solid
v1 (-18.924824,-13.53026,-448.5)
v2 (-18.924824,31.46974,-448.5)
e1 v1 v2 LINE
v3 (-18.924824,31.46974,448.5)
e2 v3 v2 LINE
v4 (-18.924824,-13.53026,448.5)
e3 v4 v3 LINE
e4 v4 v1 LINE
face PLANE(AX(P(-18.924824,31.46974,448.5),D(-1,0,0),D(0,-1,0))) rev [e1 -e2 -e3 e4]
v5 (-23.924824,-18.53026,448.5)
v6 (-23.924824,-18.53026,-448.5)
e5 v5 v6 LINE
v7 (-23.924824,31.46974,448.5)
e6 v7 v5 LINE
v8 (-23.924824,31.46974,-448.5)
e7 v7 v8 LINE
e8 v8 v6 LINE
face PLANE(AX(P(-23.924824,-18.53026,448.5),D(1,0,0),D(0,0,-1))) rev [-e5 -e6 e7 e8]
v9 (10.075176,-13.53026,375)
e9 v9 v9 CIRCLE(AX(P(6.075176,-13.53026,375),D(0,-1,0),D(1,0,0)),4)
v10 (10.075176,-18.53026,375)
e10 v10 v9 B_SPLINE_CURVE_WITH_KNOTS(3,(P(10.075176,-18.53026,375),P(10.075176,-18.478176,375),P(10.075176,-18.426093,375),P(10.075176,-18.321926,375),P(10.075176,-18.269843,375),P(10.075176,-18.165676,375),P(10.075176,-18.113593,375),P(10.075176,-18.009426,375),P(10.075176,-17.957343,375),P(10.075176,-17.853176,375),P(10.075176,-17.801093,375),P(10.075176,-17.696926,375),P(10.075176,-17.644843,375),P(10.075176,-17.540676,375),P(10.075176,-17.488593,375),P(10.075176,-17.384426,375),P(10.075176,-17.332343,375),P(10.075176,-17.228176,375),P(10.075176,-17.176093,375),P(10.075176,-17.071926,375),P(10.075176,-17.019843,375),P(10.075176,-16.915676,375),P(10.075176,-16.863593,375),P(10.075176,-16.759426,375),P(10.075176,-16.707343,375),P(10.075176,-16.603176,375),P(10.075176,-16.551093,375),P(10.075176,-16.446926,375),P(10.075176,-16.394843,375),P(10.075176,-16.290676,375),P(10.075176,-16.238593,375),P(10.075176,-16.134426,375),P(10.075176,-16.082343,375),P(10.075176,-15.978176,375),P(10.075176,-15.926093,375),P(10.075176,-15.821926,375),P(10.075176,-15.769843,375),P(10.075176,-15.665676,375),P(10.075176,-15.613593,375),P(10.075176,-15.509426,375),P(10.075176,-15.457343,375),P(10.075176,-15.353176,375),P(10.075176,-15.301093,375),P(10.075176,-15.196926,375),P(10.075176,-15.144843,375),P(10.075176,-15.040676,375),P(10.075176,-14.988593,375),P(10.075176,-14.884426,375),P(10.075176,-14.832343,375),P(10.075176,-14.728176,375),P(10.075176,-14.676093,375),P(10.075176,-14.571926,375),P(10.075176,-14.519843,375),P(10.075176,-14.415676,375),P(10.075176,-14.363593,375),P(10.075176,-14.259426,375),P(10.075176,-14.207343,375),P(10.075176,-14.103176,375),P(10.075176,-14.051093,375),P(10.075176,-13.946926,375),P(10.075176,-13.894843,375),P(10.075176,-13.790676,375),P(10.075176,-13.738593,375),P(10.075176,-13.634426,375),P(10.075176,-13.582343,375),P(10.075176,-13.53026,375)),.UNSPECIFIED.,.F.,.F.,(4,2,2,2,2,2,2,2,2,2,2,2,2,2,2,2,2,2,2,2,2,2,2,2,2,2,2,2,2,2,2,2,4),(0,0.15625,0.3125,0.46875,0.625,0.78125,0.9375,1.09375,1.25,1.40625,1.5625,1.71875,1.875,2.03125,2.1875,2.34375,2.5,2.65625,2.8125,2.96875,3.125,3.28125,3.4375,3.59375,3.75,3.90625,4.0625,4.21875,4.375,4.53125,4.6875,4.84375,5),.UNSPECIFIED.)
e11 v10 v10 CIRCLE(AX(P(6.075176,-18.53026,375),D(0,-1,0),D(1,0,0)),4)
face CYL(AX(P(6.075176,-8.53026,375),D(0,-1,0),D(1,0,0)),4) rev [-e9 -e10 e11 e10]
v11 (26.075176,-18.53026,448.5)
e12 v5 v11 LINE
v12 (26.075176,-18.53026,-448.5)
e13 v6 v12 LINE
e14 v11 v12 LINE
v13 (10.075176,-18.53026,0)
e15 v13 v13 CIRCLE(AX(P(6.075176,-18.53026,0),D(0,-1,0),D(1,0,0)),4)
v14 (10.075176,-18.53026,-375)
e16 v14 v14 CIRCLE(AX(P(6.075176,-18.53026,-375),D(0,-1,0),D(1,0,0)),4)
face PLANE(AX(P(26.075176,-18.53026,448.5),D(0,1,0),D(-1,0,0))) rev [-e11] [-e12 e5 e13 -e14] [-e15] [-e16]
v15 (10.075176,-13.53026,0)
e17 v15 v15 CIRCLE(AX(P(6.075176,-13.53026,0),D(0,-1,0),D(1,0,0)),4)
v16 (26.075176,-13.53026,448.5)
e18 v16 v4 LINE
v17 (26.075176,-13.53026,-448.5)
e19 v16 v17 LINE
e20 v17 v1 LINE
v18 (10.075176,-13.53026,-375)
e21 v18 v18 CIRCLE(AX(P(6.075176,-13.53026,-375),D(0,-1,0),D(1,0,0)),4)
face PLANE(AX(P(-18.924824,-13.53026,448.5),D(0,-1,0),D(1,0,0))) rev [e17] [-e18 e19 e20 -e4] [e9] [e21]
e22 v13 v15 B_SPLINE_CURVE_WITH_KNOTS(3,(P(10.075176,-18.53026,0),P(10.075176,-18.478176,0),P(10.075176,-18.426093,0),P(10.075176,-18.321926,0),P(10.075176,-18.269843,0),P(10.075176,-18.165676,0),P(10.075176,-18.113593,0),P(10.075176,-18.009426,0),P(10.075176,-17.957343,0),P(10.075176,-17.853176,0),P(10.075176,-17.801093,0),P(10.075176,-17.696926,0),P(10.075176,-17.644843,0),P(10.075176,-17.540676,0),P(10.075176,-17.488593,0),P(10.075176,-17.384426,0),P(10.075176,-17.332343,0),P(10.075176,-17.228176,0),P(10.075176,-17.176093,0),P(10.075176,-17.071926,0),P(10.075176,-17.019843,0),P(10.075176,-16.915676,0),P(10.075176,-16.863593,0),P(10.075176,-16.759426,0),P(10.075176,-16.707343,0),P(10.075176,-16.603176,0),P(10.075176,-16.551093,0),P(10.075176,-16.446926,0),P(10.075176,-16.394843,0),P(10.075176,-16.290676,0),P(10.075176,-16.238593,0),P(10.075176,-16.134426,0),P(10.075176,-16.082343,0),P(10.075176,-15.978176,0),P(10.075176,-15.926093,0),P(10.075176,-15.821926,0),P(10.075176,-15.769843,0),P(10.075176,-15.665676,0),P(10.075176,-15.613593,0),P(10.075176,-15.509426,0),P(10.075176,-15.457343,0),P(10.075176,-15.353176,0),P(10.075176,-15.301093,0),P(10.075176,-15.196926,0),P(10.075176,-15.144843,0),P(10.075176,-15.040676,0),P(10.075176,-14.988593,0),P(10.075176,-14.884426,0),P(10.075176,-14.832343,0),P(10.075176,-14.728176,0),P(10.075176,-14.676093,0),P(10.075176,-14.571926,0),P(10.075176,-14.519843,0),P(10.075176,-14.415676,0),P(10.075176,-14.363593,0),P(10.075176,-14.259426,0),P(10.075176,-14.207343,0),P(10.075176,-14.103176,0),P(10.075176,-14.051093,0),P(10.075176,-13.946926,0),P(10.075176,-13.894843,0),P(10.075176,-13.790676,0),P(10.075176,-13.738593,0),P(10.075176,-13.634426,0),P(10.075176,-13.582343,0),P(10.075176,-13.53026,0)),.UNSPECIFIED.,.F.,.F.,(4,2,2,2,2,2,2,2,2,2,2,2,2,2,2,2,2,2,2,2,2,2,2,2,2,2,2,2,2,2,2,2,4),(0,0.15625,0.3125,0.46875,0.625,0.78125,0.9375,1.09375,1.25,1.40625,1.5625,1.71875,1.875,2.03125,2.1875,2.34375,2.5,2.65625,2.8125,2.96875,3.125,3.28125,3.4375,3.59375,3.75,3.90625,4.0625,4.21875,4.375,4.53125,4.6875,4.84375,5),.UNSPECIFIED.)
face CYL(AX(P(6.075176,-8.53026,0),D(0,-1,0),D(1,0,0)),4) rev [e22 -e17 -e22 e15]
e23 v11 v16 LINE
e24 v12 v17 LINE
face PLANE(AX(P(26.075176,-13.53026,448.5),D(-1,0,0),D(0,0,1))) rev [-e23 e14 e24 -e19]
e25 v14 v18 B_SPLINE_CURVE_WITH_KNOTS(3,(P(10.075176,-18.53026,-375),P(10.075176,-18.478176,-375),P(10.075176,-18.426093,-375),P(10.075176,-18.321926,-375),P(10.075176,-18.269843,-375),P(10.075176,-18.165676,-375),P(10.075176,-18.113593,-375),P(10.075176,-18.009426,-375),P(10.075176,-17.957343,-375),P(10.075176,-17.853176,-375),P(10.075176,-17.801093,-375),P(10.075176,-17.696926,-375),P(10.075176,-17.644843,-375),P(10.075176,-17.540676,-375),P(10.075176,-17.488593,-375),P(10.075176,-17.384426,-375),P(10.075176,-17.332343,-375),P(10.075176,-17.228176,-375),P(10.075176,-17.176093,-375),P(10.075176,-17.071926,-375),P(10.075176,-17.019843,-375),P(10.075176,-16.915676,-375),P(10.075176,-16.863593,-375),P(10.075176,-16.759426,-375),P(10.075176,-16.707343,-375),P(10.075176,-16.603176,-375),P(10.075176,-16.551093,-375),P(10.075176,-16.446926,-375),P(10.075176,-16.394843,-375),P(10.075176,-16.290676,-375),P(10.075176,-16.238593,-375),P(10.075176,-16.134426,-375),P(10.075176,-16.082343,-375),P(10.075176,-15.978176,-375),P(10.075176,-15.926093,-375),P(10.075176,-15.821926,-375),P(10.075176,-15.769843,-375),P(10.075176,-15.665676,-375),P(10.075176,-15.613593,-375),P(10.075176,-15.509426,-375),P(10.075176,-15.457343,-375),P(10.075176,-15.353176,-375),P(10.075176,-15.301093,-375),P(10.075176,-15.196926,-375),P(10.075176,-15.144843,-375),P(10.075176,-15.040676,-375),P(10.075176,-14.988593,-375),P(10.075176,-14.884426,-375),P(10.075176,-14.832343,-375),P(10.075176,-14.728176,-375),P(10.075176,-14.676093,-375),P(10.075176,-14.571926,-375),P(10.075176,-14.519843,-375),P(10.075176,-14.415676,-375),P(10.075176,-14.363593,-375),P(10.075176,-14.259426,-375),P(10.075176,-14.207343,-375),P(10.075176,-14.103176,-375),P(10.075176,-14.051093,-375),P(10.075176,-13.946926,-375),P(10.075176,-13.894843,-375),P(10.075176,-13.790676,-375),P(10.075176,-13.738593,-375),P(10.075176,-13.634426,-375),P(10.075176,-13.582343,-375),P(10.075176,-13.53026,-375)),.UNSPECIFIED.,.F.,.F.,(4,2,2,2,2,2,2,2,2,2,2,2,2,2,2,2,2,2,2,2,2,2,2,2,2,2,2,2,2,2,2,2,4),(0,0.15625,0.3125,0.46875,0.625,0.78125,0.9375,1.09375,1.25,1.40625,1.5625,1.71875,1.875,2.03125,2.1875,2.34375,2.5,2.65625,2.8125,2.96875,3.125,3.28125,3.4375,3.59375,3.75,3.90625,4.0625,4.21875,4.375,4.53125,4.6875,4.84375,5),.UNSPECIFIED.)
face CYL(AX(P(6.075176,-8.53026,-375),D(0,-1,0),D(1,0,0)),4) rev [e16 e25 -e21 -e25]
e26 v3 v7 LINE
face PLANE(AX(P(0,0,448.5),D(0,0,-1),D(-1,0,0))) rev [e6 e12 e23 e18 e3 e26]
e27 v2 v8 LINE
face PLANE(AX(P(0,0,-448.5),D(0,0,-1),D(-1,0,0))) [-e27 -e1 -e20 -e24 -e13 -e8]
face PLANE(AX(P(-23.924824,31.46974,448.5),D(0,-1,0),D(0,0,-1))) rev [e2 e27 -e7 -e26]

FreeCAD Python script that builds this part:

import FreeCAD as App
import Part
import Sketcher

doc = App.newDocument("Part")
body = doc.addObject("PartDesign::Body", "Body")

sketch1 = body.newObject("Sketcher::SketchObject", "Sketch")
sketch1.AttachmentSupport = (doc.getObject("XY_Plane"), [""])
sketch1.MapMode = "FlatFace"
sketch1.addGeometry([
    Part.LineSegment(App.Vector(-18.924824, -13.53026, 0), App.Vector(-18.924824, 31.46974, 0)),
    Part.LineSegment(App.Vector(-18.924824, 31.46974, 0), App.Vector(-23.924824, 31.46974, 0)),
    Part.LineSegment(App.Vector(-23.924824, 31.46974, 0), App.Vector(-23.924824, -18.53026, 0)),
    Part.LineSegment(App.Vector(-23.924824, -18.53026, 0), App.Vector(26.075176, -18.53026, 0)),
    Part.LineSegment(App.Vector(26.075176, -18.53026, 0), App.Vector(26.075176, -13.53026, 0)),
    Part.LineSegment(App.Vector(26.075176, -13.53026, 0), App.Vector(-18.924824, -13.53026, 0)),
], False)
sketch1.addConstraint([
    Sketcher.Constraint("Coincident", 0, 2, 1, 1),
    Sketcher.Constraint("Coincident", 1, 2, 2, 1),
    Sketcher.Constraint("Coincident", 2, 2, 3, 1),
    Sketcher.Constraint("Coincident", 3, 2, 4, 1),
    Sketcher.Constraint("Coincident", 4, 2, 5, 1),
    Sketcher.Constraint("Coincident", 5, 2, 0, 1),
    Sketcher.Constraint("Vertical", 0),
    Sketcher.Constraint("Horizontal", 1),
    Sketcher.Constraint("Vertical", 2),
    Sketcher.Constraint("Horizontal", 3),
    Sketcher.Constraint("Vertical", 4),
    Sketcher.Constraint("Horizontal", 5),
    Sketcher.Constraint("Equal", 5, 0),
    Sketcher.Constraint("Equal", 3, 2),
    Sketcher.Constraint("DistanceX", 1, 2, 1, 1, 5.0),
    Sketcher.Constraint("DistanceX", 3, 1, 3, 2, 50.0),
    Sketcher.Constraint("DistanceY", -1, 1, 0, 2, 31.46974),
    Sketcher.Constraint("DistanceX", 0, 2, -1, 1, 18.924824),
])
pad1 = body.newObject("PartDesign::Pad", "Pad")
pad1.Profile = sketch1
pad1.Length = 897
pad1.Midplane = True

sketch2 = body.newObject("Sketcher::SketchObject", "Sketch001")
sketch2.AttachmentSupport = (doc.getObject("XZ_Plane"), [""])
sketch2.MapMode = "FlatFace"
sketch2.AttachmentOffset = App.Placement(App.Vector(0, 0, 18.53026), App.Rotation())
sketch2.addGeometry(Part.Circle(App.Vector(6.075176, 375, 0), App.Vector(0, 0, 1), 4), False)
sketch2.addConstraint([
    Sketcher.Constraint("Diameter", 0, 8.0),
    Sketcher.Constraint("DistanceY", -1, 1, 0, 3, 375.0),
    Sketcher.Constraint("DistanceX", -1, 1, 0, 3, 6.075176),
])
pocket1 = body.newObject("PartDesign::Pocket", "Pocket")
pocket1.Profile = sketch2
pocket1.Length = 10
doc.recompute()

linearpattern = body.newObject("PartDesign::LinearPattern", "LinearPattern")
linearpattern.Originals = [pocket1]
linearpattern.Direction = (doc.getObject("Z_Axis"), [""])
linearpattern.Mode = "offset"
linearpattern.Offset = 375
linearpattern.Occurrences = 3
linearpattern.Reversed = True
body.Tip = linearpattern

doc.recompute()
